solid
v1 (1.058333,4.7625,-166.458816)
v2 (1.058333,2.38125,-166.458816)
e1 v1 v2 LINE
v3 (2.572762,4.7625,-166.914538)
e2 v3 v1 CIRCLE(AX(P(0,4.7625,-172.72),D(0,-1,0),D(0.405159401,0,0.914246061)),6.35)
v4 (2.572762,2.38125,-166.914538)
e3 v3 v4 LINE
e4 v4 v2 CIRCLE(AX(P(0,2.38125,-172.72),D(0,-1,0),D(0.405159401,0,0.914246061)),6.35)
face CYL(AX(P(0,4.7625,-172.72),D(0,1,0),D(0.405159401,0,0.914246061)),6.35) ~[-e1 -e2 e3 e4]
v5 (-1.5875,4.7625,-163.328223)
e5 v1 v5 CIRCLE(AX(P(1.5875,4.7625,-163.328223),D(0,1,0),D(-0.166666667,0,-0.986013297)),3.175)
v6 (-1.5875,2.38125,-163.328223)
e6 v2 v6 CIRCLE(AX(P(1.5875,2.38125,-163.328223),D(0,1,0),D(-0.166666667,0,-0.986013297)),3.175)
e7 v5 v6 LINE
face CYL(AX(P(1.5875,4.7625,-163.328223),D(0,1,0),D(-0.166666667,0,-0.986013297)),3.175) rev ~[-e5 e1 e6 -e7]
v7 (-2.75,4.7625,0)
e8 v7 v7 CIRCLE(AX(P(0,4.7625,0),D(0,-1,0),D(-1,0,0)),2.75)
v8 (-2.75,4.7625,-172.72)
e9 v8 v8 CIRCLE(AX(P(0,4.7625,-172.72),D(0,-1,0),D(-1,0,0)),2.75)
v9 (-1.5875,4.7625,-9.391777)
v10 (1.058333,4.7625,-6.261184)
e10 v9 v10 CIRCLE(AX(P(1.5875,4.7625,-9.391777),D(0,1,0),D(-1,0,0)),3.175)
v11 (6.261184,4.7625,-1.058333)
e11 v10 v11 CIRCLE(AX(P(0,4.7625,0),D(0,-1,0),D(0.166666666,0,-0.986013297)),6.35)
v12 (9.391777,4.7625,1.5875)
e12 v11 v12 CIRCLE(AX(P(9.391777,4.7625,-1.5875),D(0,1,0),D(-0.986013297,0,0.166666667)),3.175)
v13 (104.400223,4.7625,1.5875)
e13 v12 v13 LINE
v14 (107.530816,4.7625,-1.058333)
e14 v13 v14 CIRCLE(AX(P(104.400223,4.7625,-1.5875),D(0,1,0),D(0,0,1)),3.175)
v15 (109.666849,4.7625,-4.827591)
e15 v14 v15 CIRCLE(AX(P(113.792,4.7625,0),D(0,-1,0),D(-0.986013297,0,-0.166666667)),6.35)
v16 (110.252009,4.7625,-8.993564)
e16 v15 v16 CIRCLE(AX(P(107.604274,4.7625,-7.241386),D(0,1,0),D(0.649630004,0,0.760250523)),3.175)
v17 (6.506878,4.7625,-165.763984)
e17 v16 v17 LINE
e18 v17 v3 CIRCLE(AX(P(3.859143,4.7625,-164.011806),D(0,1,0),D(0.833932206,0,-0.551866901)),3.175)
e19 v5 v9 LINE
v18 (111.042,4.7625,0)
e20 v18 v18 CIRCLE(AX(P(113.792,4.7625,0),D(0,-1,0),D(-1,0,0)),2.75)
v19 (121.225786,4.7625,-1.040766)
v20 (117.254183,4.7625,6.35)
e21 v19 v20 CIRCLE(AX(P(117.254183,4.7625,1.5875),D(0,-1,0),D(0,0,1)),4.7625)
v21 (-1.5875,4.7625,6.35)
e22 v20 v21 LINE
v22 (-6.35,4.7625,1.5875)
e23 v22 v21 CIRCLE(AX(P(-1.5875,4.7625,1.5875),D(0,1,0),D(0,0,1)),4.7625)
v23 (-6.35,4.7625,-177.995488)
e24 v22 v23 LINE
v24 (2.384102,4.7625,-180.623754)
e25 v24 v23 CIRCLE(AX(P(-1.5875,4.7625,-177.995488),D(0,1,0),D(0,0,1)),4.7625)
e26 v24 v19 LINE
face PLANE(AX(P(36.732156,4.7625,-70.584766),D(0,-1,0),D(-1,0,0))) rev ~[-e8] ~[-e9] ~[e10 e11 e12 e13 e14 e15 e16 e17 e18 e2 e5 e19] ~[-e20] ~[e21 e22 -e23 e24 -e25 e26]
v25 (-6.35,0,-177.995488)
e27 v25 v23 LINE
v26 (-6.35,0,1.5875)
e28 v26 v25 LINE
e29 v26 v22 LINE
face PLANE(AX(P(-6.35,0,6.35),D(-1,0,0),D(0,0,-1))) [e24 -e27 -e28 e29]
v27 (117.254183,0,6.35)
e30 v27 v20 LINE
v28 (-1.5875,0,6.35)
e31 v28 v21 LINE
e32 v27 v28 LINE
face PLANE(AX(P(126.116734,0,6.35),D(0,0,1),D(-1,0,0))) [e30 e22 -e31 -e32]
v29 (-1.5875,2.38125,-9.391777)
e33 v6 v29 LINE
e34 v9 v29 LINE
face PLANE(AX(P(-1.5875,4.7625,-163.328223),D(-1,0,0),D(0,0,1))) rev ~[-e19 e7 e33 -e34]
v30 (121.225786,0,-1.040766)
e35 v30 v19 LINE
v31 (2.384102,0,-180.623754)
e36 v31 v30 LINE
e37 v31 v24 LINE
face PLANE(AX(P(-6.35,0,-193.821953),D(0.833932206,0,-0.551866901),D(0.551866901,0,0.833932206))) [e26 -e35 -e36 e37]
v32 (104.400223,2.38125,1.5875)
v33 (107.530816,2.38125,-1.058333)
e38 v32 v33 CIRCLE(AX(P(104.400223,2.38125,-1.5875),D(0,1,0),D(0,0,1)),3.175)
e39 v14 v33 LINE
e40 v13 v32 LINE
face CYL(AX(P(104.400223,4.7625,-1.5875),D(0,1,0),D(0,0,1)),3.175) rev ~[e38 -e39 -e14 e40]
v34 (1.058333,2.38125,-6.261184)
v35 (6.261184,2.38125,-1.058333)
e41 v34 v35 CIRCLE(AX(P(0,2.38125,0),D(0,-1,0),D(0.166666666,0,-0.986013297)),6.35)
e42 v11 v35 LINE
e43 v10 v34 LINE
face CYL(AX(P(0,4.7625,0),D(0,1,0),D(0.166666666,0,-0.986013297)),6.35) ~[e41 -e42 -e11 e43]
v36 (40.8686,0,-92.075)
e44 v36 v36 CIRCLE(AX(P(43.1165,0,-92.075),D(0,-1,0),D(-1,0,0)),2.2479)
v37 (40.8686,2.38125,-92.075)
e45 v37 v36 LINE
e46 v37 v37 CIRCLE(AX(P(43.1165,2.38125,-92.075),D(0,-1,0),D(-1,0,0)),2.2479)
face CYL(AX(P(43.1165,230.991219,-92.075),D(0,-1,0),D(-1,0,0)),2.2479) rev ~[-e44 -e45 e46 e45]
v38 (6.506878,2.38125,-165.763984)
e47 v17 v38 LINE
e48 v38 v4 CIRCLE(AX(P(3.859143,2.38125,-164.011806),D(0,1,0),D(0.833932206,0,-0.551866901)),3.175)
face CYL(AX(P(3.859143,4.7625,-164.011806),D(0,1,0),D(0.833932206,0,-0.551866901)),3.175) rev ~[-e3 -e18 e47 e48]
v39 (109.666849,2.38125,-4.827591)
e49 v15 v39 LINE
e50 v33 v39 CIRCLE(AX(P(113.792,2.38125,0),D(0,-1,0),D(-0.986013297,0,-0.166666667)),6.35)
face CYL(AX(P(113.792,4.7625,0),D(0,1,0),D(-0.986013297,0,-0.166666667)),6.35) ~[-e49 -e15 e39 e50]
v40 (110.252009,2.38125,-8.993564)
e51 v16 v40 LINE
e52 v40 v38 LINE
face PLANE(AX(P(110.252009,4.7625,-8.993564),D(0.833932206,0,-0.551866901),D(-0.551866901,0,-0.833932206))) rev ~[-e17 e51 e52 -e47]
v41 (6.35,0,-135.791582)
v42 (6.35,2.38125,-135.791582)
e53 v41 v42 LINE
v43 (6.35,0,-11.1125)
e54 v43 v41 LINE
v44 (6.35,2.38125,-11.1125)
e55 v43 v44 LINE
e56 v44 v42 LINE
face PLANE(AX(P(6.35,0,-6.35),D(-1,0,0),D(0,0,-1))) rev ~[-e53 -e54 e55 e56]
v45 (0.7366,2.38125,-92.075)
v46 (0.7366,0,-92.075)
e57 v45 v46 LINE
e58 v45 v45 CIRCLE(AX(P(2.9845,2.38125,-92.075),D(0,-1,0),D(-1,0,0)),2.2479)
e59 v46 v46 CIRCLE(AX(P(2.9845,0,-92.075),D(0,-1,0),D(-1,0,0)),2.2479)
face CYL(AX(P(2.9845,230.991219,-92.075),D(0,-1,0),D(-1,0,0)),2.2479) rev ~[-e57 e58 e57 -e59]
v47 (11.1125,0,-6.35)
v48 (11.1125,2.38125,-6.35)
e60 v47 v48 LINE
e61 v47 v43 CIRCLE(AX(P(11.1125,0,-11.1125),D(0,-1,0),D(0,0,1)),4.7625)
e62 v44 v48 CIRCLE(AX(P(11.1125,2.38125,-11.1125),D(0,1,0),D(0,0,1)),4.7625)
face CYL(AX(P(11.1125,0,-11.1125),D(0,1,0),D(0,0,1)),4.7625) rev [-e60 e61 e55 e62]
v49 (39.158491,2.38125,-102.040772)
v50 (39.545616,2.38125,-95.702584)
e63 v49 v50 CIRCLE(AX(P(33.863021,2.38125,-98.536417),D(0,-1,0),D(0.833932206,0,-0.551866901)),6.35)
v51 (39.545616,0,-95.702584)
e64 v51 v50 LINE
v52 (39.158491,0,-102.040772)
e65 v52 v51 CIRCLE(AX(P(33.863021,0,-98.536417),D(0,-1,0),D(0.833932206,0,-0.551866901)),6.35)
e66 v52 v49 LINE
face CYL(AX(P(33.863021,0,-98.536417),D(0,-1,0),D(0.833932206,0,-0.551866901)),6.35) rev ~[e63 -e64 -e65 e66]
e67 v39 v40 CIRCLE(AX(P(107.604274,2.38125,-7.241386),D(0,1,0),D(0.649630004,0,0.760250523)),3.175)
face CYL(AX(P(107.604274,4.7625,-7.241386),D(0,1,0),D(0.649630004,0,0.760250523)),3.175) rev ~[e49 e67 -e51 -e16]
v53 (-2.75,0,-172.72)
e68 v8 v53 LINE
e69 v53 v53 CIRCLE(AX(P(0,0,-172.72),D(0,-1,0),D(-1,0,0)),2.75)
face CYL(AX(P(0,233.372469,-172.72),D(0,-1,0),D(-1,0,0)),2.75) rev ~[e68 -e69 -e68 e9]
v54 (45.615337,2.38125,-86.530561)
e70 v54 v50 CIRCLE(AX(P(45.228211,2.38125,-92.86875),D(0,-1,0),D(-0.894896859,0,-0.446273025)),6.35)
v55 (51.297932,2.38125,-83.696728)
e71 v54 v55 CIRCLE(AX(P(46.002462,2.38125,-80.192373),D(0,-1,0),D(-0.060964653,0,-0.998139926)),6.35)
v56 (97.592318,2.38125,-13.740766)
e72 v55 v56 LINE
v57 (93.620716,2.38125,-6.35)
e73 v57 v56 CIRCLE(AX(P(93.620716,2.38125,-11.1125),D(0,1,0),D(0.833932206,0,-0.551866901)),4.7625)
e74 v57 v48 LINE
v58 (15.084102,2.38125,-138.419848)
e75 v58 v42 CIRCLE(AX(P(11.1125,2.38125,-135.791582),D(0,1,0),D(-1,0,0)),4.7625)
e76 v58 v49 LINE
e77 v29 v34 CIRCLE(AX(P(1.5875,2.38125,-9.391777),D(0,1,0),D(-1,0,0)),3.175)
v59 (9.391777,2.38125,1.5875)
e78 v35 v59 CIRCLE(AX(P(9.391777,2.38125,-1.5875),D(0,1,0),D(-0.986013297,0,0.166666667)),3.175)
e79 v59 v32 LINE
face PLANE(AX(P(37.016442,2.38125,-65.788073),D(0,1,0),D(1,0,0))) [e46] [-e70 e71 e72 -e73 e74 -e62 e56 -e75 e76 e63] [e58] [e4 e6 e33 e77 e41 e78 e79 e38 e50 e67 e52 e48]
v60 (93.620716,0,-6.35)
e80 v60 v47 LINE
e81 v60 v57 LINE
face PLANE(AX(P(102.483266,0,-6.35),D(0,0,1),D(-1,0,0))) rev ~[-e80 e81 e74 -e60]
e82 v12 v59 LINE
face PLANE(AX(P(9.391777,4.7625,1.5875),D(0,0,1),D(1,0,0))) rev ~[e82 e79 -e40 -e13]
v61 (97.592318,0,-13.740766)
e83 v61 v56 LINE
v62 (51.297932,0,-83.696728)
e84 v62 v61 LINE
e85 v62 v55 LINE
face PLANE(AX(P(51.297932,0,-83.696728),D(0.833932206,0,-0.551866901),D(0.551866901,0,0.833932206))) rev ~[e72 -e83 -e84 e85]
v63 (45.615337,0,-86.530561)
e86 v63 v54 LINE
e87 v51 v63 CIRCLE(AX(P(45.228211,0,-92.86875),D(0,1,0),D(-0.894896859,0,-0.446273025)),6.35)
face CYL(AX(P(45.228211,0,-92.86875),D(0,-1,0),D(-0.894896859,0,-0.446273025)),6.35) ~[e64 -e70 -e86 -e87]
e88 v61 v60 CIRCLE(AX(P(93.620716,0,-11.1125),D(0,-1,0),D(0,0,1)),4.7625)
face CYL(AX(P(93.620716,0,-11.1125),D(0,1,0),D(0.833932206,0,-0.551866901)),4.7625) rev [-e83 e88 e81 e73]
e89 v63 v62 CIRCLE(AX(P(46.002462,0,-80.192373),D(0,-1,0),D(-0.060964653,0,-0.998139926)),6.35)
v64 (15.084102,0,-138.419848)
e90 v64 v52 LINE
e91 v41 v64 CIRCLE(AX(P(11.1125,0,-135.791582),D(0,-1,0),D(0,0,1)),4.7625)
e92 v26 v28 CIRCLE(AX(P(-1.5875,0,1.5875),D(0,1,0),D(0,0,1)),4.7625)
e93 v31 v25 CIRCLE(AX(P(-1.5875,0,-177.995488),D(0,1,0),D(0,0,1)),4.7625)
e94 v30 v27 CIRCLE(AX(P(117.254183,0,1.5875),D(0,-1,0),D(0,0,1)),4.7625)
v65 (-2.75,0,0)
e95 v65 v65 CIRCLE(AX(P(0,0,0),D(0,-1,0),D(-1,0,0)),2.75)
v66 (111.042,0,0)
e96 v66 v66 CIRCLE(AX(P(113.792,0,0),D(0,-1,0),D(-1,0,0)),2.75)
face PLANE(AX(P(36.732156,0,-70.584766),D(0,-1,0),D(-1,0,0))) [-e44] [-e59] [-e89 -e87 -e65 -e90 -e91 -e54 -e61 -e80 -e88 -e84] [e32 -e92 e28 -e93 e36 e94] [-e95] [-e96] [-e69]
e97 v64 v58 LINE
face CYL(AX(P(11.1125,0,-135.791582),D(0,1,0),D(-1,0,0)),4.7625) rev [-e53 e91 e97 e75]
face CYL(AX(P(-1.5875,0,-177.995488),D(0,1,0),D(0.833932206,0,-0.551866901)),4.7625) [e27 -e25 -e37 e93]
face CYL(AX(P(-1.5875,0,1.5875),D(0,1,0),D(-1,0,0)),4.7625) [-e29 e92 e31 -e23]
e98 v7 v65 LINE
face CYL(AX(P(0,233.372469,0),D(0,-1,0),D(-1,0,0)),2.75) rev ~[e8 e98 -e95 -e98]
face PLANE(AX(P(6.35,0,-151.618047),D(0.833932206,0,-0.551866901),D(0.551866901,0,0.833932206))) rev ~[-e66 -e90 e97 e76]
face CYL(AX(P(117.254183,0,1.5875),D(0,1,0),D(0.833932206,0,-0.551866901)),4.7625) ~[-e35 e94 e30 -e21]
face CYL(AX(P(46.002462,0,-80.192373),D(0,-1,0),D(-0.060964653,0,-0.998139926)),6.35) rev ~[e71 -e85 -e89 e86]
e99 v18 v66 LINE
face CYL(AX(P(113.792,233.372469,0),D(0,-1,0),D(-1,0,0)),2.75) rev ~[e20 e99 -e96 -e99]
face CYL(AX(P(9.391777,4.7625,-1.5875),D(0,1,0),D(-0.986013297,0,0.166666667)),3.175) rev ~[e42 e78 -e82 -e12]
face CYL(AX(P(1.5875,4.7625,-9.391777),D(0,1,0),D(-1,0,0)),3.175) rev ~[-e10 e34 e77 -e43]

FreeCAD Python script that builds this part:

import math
import FreeCAD as App
import Part
import Sketcher
Q = App.Units.Quantity


def edges_at(feature, points):
    """Names of the edges that pass closest to the given points."""
    edges = feature.Shape.Edges
    near = lambda p: min(range(len(edges)), key=lambda i: edges[i].distToShape(Part.Vertex(*p))[0])
    return sorted({f"Edge{near(p) + 1}" for p in points})

doc = App.newDocument("Part")
body = doc.addObject("PartDesign::Body", "Body")

sketch1 = doc.addObject("Sketcher::SketchObject", "Sketch")
body.addObject(sketch1)
sketch1.AttachmentSupport = (doc.XZ_Plane, [""])
sketch1.MapMode = "FlatFace"
sketch1.addGeometry([
    Part.LineSegment(App.Vector(126, 6, 0), App.Vector(-6, -194, 0)),
    Part.LineSegment(App.Vector(-6, -194, 0), App.Vector(-6, 6, 0)),
    Part.LineSegment(App.Vector(-6, 6, 0), App.Vector(126, 6, 0)),
    Part.LineSegment(App.Vector(51, -84, 0), App.Vector(102, -6, 0)),
    Part.LineSegment(App.Vector(102, -6, 0), App.Vector(6, -6, 0)),
    Part.LineSegment(App.Vector(6, -6, 0), App.Vector(6, -152, 0)),
    Part.LineSegment(App.Vector(6, -152, 0), App.Vector(39, -102, 0)),
    Part.ArcOfCircle(Part.Circle(App.Vector(34, -99, 0), App.Vector(0, 0, 1), 6), math.radians(-33), math.radians(27)),
    Part.ArcOfCircle(Part.Circle(App.Vector(45, -93, 0), App.Vector(0, 0, 1), 6), math.radians(87), math.radians(207)),
    Part.ArcOfCircle(Part.Circle(App.Vector(46, -80, 0), App.Vector(0, 0, 1), 6), math.radians(-93), math.radians(-33)),
], False)
sketch1.addConstraint([
    Sketcher.Constraint("Coincident", 0, 2, 1, 1),
    Sketcher.Constraint("Coincident", 1, 2, 2, 1),
    Sketcher.Constraint("Coincident", 2, 2, 0, 1),
    Sketcher.Constraint("Coincident", 3, 2, 4, 1),
    Sketcher.Constraint("Coincident", 4, 2, 5, 1),
    Sketcher.Constraint("Coincident", 5, 2, 6, 1),
    Sketcher.Constraint("Tangent", 6, 2, 7, 1),
    Sketcher.Constraint("Tangent", 7, 2, 8, 2),
    Sketcher.Constraint("Tangent", 8, 1, 9, 1),
    Sketcher.Constraint("Tangent", 9, 2, 3, 1),
    Sketcher.Constraint("Vertical", 1),
    Sketcher.Constraint("Horizontal", 2),
    Sketcher.Constraint("Horizontal", 4),
    Sketcher.Constraint("Vertical", 5),
    Sketcher.Constraint("Equal", 7, 8),
    Sketcher.Constraint("Equal", 8, 9),
    Sketcher.Constraint("Symmetric", 1, 2, 4, 2, -1, 1),
    Sketcher.Constraint("Parallel", 0, 3),
    Sketcher.Constraint("Parallel", 3, 6),
    Sketcher.Constraint("Radius", 7, Q("0.25 in")),
    Sketcher.Constraint("DistanceY", 3, 2, 2, 2, Q("0.5 in")),
    Sketcher.Constraint("DistanceX", 1, 2, 4, 2, Q("0.5 in")),
    Sketcher.Constraint("DistanceY", 8, 3, -1, 1, Q("3.65625 in")),
    Sketcher.Constraint("DistanceY", 6, 2, 9, 3, 21.848399),
    Sketcher.Constraint("Distance", 3, 92.749419),
    Sketcher.Constraint("DistanceX", 2, 1, 2, 2, 132.466734),
    Sketcher.Constraint("DistanceX", 4, 2, 4, 1, 96.133266),
    Sketcher.Constraint("DistanceY", 1, 1, 1, 2, 200.171953),
])
pad1 = doc.addObject("PartDesign::Pad", "Pad")
body.addObject(pad1)
pad1.Profile = sketch1
pad1.Length = Q("0.1875 in")
pad1.Reversed = True
doc.recompute()

fillet = doc.addObject("PartDesign::Fillet", "Fillet")
body.addObject(fillet)
fillet.Base = (pad1, edges_at(pad1, [
    (6.35, 2.381, -151.618),
    (6.35, 2.381, -6.35),
    (102.483, 2.381, -6.35),
    (-6.35, 2.381, -193.822),
    (126.117, 2.381, 6.35),
    (-6.35, 2.381, 6.35),
]))
fillet.Radius = Q("0.1875 in")

sketch2 = doc.addObject("Sketcher::SketchObject", "Sketch001")
body.addObject(sketch2)
sketch2.AttachmentSupport = (doc.XZ_Plane, [""])
sketch2.MapMode = "FlatFace"
sketch2.AttachmentOffset = App.Placement(App.Vector(0, 0, -0.1875 * 25.4), App.Rotation())
sketch2.addGeometry([
    Part.Circle(App.Vector(0, -172.7, 0), App.Vector(0, 0, 1), 2.7),
    Part.Circle(App.Vector(0, 0, 0), App.Vector(0, 0, 1), 2.7),
    Part.Circle(App.Vector(113.8, 0, 0), App.Vector(0, 0, 1), 2.7),
], False)
sketch2.addConstraint([
    Sketcher.Constraint("Coincident", 1, 3, -1, 1),
    Sketcher.Constraint("Equal", 0, 1),
    Sketcher.Constraint("Equal", 1, 2),
    Sketcher.Constraint("PointOnObject", 0, 3, -2),
    Sketcher.Constraint("PointOnObject", 2, 3, -1),
    Sketcher.Constraint("DistanceY", 0, 3, -1, 1, Q("6.8 in")),
    Sketcher.Constraint("Diameter", 0, 5.5),
    Sketcher.Constraint("DistanceX", -1, 1, 2, 3, Q("4.48 in")),
])
doc.recompute()
hole = doc.addObject("PartDesign::Hole", "Hole")
body.addObject(hole)
hole.Profile = sketch2
hole.ThreadType = "None"
hole.Diameter = 5.5
hole.DepthType = "ThroughAll"
hole.Reversed = True

sketch3 = doc.addObject("Sketcher::SketchObject", "Sketch002")
body.addObject(sketch3)
sketch3.AttachmentSupport = (doc.XZ_Plane, [""])
sketch3.MapMode = "FlatFace"
sketch3.AttachmentOffset = App.Placement(App.Vector(0, 0, -0.1875 * 25.4), App.Rotation())
sketch3.addGeometry([
    Part.LineSegment(App.Vector(110.3, -9, 0), App.Vector(6.5, -165.8, 0)),
    Part.ArcOfCircle(Part.Circle(App.Vector(3.9, -164, 0), App.Vector(0, 0, 1), 3.2), math.radians(-114), math.radians(-33)),
    Part.ArcOfCircle(Part.Circle(App.Vector(0, -172.7, 0), App.Vector(0, 0, 1), 6.4), math.radians(66.1), math.radians(80.41)),
    Part.ArcOfCircle(Part.Circle(App.Vector(1.6, -163.3, 0), App.Vector(0, 0, 1), 3.2), math.radians(180), math.radians(260)),
    Part.LineSegment(App.Vector(-1.6, -163.3, 0), App.Vector(-1.6, -9.4, 0)),
    Part.ArcOfCircle(Part.Circle(App.Vector(1.6, -9.4, 0), App.Vector(0, 0, 1), 3.2), math.radians(100), math.radians(180)),
    Part.ArcOfCircle(Part.Circle(App.Vector(0, 0, 0), App.Vector(0, 0, 1), 6.3), math.radians(-80), math.radians(-10)),
    Part.ArcOfCircle(Part.Circle(App.Vector(9.4, -1.6, 0), App.Vector(0, 0, 1), 3.2), math.radians(90), math.radians(170)),
    Part.LineSegment(App.Vector(9.4, 1.6, 0), App.Vector(104.4, 1.6, 0)),
    Part.ArcOfCircle(Part.Circle(App.Vector(104.4, -1.6, 0), App.Vector(0, 0, 1), 3.2), math.radians(10), math.radians(90)),
    Part.ArcOfCircle(Part.Circle(App.Vector(113.8, 0, 0), App.Vector(0, 0, 1), 6.4), math.radians(-170), math.radians(-131)),
    Part.ArcOfCircle(Part.Circle(App.Vector(107.6, -7.2, 0), App.Vector(0, 0, 1), 3.2), math.radians(-33), math.radians(49)),
], False)
sketch3.addConstraint([
    Sketcher.Constraint("Tangent", 0, 2, 1, 2),
    Sketcher.Constraint("Tangent", 1, 1, 2, 1),
    Sketcher.Constraint("Tangent", 2, 2, 3, 2),
    Sketcher.Constraint("Tangent", 3, 1, 4, 1),
    Sketcher.Constraint("Tangent", 4, 2, 5, 2),
    Sketcher.Constraint("Tangent", 5, 1, 6, 1),
    Sketcher.Constraint("Tangent", 6, 2, 7, 2),
    Sketcher.Constraint("Tangent", 7, 1, 8, 1),
    Sketcher.Constraint("Tangent", 8, 2, 9, 2),
    Sketcher.Constraint("Tangent", 9, 1, 10, 1),
    Sketcher.Constraint("Tangent", 10, 2, 11, 2),
    Sketcher.Constraint("Tangent", 11, 1, 0, 1),
    Sketcher.Constraint("Vertical", 4),
    Sketcher.Constraint("Horizontal", 8),
    Sketcher.Constraint("Coincident", 6, 3, -1, 1),
    Sketcher.Constraint("Equal", 1, 3),
    Sketcher.Constraint("Equal", 3, 5),
    Sketcher.Constraint("Equal", 2, 6),
    Sketcher.Constraint("Equal", 5, 7),
    Sketcher.Constraint("Equal", 7, 9),
    Sketcher.Constraint("Equal", 6, 10),
    Sketcher.Constraint("Equal", 9, 11),
    Sketcher.Constraint("PointOnObject", 2, 3, -2),
    Sketcher.Constraint("PointOnObject", 10, 3, -1),
    Sketcher.Constraint("Radius", 2, Q("0.25 in")),
    Sketcher.Constraint("Radius", 1, Q("0.125 in")),
    Sketcher.Constraint("DistanceY", 2, 3, -1, 1, Q("6.8 in")),
    Sketcher.Constraint("DistanceX", -1, 1, 10, 3, Q("4.48 in")),
    Sketcher.Constraint("DistanceX", -1, 1, 3, 3, Q("0.0625 in")),
    Sketcher.Constraint("DistanceY", 7, 3, -1, 1, Q("0.0625 in")),
    Sketcher.Constraint("DistanceX", 0, 2, 7, 3, 2.884899),
    Sketcher.Constraint("DistanceX", -1, 1, 10, 2, 109.666849),
])
pocket1 = doc.addObject("PartDesign::Pocket", "Pocket")
body.addObject(pocket1)
pocket1.Profile = sketch3
pocket1.Length = Q("0.09375 in")
pocket1.Reversed = True

sketch4 = doc.addObject("Sketcher::SketchObject", "Sketch003")
body.addObject(sketch4)
sketch4.AttachmentSupport = (doc.XZ_Plane, [""])
sketch4.MapMode = "FlatFace"
sketch4.AttachmentOffset = App.Placement(App.Vector(0, 0, -0.09375 * 25.4), App.Rotation())
sketch4.addGeometry([
    Part.Circle(App.Vector(3, -92.1, 0), App.Vector(0, 0, 1), 2.2),
    Part.Circle(App.Vector(43.1, -92.1, 0), App.Vector(0, 0, 1), 2.2),
], False)
sketch4.addConstraint([
    Sketcher.Constraint("Equal", 0, 1),
    Sketcher.Constraint("Horizontal", 0, 3, 1, 3),
    Sketcher.Constraint("Diameter", 0, Q("0.177 in")),
    Sketcher.Constraint("DistanceX", 0, 3, 1, 3, Q("1.58 in")),
    Sketcher.Constraint("DistanceY", 0, 3, -1, 1, Q("3.625 in")),
    Sketcher.Constraint("DistanceX", -1, 1, 0, 3, Q("0.1175 in")),
])
doc.recompute()
hole2 = doc.addObject("PartDesign::Hole", "Hole001")
body.addObject(hole2)
hole2.Profile = sketch4
hole2.ThreadType = "None"
hole2.Diameter = Q("0.177 in")
hole2.DepthType = "ThroughAll"
hole2.Reversed = True

doc.recompute()
